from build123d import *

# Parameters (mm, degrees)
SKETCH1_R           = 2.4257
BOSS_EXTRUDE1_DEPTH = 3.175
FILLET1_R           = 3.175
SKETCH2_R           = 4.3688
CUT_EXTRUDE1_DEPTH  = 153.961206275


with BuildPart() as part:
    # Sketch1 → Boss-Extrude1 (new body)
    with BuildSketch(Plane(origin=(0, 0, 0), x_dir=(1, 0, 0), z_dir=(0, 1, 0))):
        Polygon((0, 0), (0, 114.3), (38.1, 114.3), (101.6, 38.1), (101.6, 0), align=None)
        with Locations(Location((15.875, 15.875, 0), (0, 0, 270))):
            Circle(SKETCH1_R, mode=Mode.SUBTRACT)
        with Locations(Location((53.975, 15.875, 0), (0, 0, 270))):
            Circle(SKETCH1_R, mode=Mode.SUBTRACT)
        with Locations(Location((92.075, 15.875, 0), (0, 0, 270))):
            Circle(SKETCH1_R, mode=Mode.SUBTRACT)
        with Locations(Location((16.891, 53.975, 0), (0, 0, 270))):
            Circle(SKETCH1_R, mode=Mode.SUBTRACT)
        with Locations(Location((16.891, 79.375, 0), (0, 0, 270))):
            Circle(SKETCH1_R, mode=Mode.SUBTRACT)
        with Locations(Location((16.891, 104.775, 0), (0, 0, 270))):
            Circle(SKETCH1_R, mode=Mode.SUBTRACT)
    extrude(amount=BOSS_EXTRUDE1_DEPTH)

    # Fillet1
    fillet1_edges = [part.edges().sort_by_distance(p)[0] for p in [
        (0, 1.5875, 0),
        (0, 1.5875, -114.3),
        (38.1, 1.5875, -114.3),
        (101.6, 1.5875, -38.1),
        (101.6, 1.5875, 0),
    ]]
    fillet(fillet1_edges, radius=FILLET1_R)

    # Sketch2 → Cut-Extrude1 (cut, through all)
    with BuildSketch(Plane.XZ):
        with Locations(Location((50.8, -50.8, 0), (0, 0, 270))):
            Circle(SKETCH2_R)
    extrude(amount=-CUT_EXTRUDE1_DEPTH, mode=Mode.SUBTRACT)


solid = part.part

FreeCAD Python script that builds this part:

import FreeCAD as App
import Part
import Sketcher
from FreeCAD import Vector
Q = App.Units.Quantity


def edges_at(feature, points):
    """Names of the edges that pass closest to the given points."""
    edges = feature.Shape.Edges
    near = lambda p: min(range(len(edges)), key=lambda i: edges[i].distToShape(Part.Vertex(*p))[0])
    return sorted({f"Edge{near(p) + 1}" for p in points})

doc = App.newDocument("Part")
params = doc.addObject("Spreadsheet::Sheet", "Params")
for row, (alias, value) in enumerate([
    ("sketch1_width", "4 in"),
    ("sketch1_diameter", "0.191 in"),
    ("sketch1_width2", "1.5 in"),
    ("sketch1_height", "4.5 in"),
    ("pad1_length", "0.125 in"),
    ("fillet_radius", "0.125 in"),
    ("sketch2_diameter", "0.344 in"),
], start=1):
    params.set(f"A{row}", alias)
    params.set(f"B{row}", "=" + value)
    params.setAlias(f"B{row}", alias)

body = doc.addObject("PartDesign::Body", "Body")

# Sketch on XZ plane
sketch1 = body.newObject("Sketcher::SketchObject", "Sketch")
sketch1.AttachmentSupport = (doc.getObject("XZ_Plane"), [""])
sketch1.MapMode = "FlatFace"
sketch1.addGeometry(Part.LineSegment(Vector(0, -114.3, 0), Vector(0, 0, 0)), False)
sketch1.addGeometry(Part.LineSegment(Vector(0, 0, 0), Vector(101.6, 0, 0)), False)
sketch1.addGeometry(Part.LineSegment(Vector(101.6, 0, 0), Vector(101.6, -38.1, 0)), False)
sketch1.addGeometry(Part.LineSegment(Vector(101.6, -38.1, 0), Vector(38.1, -114.3, 0)), False)
sketch1.addGeometry(Part.LineSegment(Vector(38.1, -114.3, 0), Vector(0, -114.3, 0)), False)
sketch1.addGeometry(Part.Circle(Vector(92.1, -15.9, 0), Vector(0, 0, 1), 2.4), False)
sketch1.addGeometry(Part.Circle(Vector(54, -15.9, 0), Vector(0, 0, 1), 2.4), False)
sketch1.addGeometry(Part.Circle(Vector(15.9, -15.9, 0), Vector(0, 0, 1), 2.4), False)
sketch1.addGeometry(Part.Circle(Vector(16.9, -54, 0), Vector(0, 0, 1), 2.4), False)
sketch1.addGeometry(Part.Circle(Vector(16.9, -79.4, 0), Vector(0, 0, 1), 2.4), False)
sketch1.addGeometry(Part.Circle(Vector(16.9, -104.8, 0), Vector(0, 0, 1), 2.4), False)
sketch1.addConstraint(Sketcher.Constraint("Coincident", 0, 2, 1, 1))
sketch1.addConstraint(Sketcher.Constraint("Coincident", 1, 2, 2, 1))
sketch1.addConstraint(Sketcher.Constraint("Coincident", 2, 2, 3, 1))
sketch1.addConstraint(Sketcher.Constraint("Coincident", 3, 2, 4, 1))
sketch1.addConstraint(Sketcher.Constraint("Coincident", 4, 2, 0, 1))
sketch1.addConstraint(Sketcher.Constraint("Vertical", 0))
sketch1.addConstraint(Sketcher.Constraint("Horizontal", 1))
sketch1.addConstraint(Sketcher.Constraint("Vertical", 2))
sketch1.addConstraint(Sketcher.Constraint("Horizontal", 4))
sketch1.addConstraint(Sketcher.Constraint("Coincident", 0, 2, -1, 1))
sketch1.addConstraint(Sketcher.Constraint("Equal", 5, 6))
sketch1.addConstraint(Sketcher.Constraint("Equal", 6, 7))
sketch1.addConstraint(Sketcher.Constraint("Equal", 7, 8))
sketch1.addConstraint(Sketcher.Constraint("Equal", 8, 9))
sketch1.addConstraint(Sketcher.Constraint("Equal", 9, 10))
sketch1.addConstraint(Sketcher.Constraint("Horizontal", 5, 3, 6, 3))
sketch1.addConstraint(Sketcher.Constraint("Horizontal", 6, 3, 7, 3))
sketch1.addConstraint(Sketcher.Constraint("Vertical", 8, 3, 9, 3))
sketch1.addConstraint(Sketcher.Constraint("Vertical", 9, 3, 10, 3))
sketch1.addConstraint(Sketcher.Constraint("Equal", 4, 2))
sketch1.addConstraint(Sketcher.Constraint("DistanceX", 1, 1, 1, 2, Q("4 in")))
sketch1.addConstraint(Sketcher.Constraint("Diameter", 5, Q("0.191 in")))
sketch1.addConstraint(Sketcher.Constraint("DistanceX", 4, 2, 4, 1, Q("1.5 in")))
sketch1.addConstraint(Sketcher.Constraint("DistanceY", 0, 1, 0, 2, Q("4.5 in")))
sketch1.addConstraint(Sketcher.Constraint("DistanceX", 7, 3, 5, 3, Q("3 in")))
sketch1.addConstraint(Sketcher.Constraint("DistanceY", 9, 3, 8, 3, Q("1 in")))
sketch1.addConstraint(Sketcher.Constraint("DistanceY", 10, 3, 9, 3, Q("1 in")))
sketch1.addConstraint(Sketcher.Constraint("DistanceX", 6, 3, 5, 3, Q("1.5 in")))
sketch1.addConstraint(Sketcher.Constraint("DistanceY", 8, 3, 7, 3, Q("1.5 in")))
sketch1.addConstraint(Sketcher.Constraint("DistanceX", 7, 3, 8, 3, Q("0.04 in")))
sketch1.addConstraint(Sketcher.Constraint("DistanceX", -1, 1, 5, 3, Q("3.625 in")))
sketch1.addConstraint(Sketcher.Constraint("DistanceY", 5, 3, -1, 1, Q("0.625 in")))
sketch1.setExpression("Constraints[20]", "Params.sketch1_width")
sketch1.setExpression("Constraints[21]", "Params.sketch1_diameter")
sketch1.setExpression("Constraints[22]", "Params.sketch1_width2")
sketch1.setExpression("Constraints[23]", "Params.sketch1_height")
pad1 = body.newObject("PartDesign::Pad", "Pad")
pad1.Profile = sketch1
pad1.setExpression("Length", "Params.pad1_length")
pad1.Reversed = True
doc.recompute()

fillet = body.newObject("PartDesign::Fillet", "Fillet")
fillet.Base = (pad1, edges_at(pad1, [
    (0, 1.587, 0),
    (0, 1.587, -114.3),
    (38.1, 1.587, -114.3),
    (101.6, 1.587, -38.1),
    (101.6, 1.587, 0),
]))
fillet.setExpression("Radius", "Params.fillet_radius")

# Sketch on XZ plane
sketch2 = body.newObject("Sketcher::SketchObject", "Sketch001")
sketch2.AttachmentSupport = (doc.getObject("XZ_Plane"), [""])
sketch2.MapMode = "FlatFace"
sketch2.addGeometry(Part.Circle(Vector(50.8, -50.8, 0), Vector(0, 0, 1), 4.4), False)
sketch2.addConstraint(Sketcher.Constraint("Diameter", 0, Q("0.344 in")))
sketch2.addConstraint(Sketcher.Constraint("DistanceX", -1, 1, 0, 3, Q("2 in")))
sketch2.addConstraint(Sketcher.Constraint("DistanceY", 0, 3, -1, 1, Q("2 in")))
sketch2.setExpression("Constraints[0]", "Params.sketch2_diameter")
pocket1 = body.newObject("PartDesign::Pocket", "Pocket")
pocket1.Profile = sketch2
pocket1.Type = "ThroughAll"

doc.recompute()
